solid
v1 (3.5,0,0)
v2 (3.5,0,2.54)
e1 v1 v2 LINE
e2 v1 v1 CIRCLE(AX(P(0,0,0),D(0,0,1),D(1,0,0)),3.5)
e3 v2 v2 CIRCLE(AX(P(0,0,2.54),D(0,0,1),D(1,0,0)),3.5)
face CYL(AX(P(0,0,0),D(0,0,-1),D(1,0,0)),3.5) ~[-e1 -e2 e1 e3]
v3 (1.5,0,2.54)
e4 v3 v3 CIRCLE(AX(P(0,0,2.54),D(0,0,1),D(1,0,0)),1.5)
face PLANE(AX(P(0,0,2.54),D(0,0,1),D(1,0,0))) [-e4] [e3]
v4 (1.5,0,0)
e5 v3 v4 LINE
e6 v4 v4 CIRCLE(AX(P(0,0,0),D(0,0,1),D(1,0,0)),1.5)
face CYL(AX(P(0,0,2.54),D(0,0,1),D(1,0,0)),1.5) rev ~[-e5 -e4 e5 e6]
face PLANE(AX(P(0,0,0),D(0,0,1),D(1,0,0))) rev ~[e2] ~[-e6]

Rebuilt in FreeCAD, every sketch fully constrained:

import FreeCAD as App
import Part
import Sketcher

V = App.Vector

doc = App.newDocument("Part")
body = doc.addObject("PartDesign::Body", "Body")

sketch1 = body.newObject("Sketcher::SketchObject", "Sketch")
sketch1.AttachmentSupport = (doc.getObject("XY_Plane"), [""])
sketch1.MapMode = "FlatFace"
sketch1.addGeometry(Part.Circle(V(0, 0, 0), V(0, 0, 1), 3.5), False)
sketch1.addConstraint([
    Sketcher.Constraint("Coincident", 0, 3, -1, 1),
    Sketcher.Constraint("Diameter", 0, 7.0),
])
pad1 = body.newObject("PartDesign::Pad", "Pad")
pad1.Profile = sketch1
pad1.Length = 2.54

sketch2 = body.newObject("Sketcher::SketchObject", "Sketch001")
sketch2.AttachmentSupport = (doc.getObject("XY_Plane"), [""])
sketch2.MapMode = "FlatFace"
sketch2.AttachmentOffset = App.Placement(V(0, 0, 2.54), App.Rotation())
sketch2.addGeometry(Part.Circle(V(0, 0, 0), V(0, 0, 1), 1.5), False)
sketch2.addConstraint([
    Sketcher.Constraint("Coincident", 0, 3, -1, 1),
    Sketcher.Constraint("Diameter", 0, 3.0),
])
pocket1 = body.newObject("PartDesign::Pocket", "Pocket")
pocket1.Profile = sketch2
pocket1.Type = "ThroughAll"

doc.recompute()
